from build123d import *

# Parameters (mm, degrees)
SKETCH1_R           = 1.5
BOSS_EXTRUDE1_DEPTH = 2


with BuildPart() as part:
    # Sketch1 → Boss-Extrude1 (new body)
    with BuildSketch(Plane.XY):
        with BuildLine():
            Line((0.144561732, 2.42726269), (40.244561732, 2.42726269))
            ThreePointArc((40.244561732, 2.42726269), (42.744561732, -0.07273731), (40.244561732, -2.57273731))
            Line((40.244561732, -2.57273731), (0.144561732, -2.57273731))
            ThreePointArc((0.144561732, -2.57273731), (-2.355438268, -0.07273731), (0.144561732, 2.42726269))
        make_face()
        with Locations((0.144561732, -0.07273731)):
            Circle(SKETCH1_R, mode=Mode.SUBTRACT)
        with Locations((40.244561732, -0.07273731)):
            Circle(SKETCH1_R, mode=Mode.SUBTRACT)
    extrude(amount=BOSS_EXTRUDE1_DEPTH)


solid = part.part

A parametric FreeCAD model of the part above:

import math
import FreeCAD as App
import Part
import Sketcher

doc = App.newDocument("Part")
body = doc.addObject("PartDesign::Body", "Body")

# Sketch on XY plane
sketch1 = doc.addObject("Sketcher::SketchObject", "Sketch")
body.addObject(sketch1)
sketch1.AttachmentSupport = (doc.XY_Plane, [""])
sketch1.MapMode = "FlatFace"
sketch1.addGeometry([
    Part.LineSegment(App.Vector(40.244562, 2.427263, 0), App.Vector(0.144562, 2.427263, 0)),  # 0
    Part.ArcOfCircle(Part.Circle(App.Vector(0.144562, -0.072737, 0), App.Vector(0, 0, 1), 2.5), math.radians(90), math.radians(270)),  # 1
    Part.LineSegment(App.Vector(0.144562, -2.572737, 0), App.Vector(40.244562, -2.572737, 0)),  # 2
    Part.ArcOfCircle(Part.Circle(App.Vector(40.244562, -0.072737, 0), App.Vector(0, 0, 1), 2.5), math.radians(-90), math.radians(90)),  # 3
    Part.Circle(App.Vector(40.244562, -0.072737, 0), App.Vector(0, 0, 1), 1.5),  # 4
    Part.Circle(App.Vector(0.144562, -0.072737, 0), App.Vector(0, 0, 1), 1.5),  # 5
], False)
sketch1.addConstraint([
    Sketcher.Constraint("Tangent", 0, 2, 1, 1),
    Sketcher.Constraint("Tangent", 1, 2, 2, 1),
    Sketcher.Constraint("Tangent", 2, 2, 3, 1),
    Sketcher.Constraint("Tangent", 3, 2, 0, 1),
    Sketcher.Constraint("Horizontal", 0),
    Sketcher.Constraint("Horizontal", 2),
    Sketcher.Constraint("Coincident", 4, 3, 3, 3),
    Sketcher.Constraint("Coincident", 5, 3, 1, 3),
    Sketcher.Constraint("Equal", 4, 5),
    Sketcher.Constraint("Diameter", 4, 3.0),
    Sketcher.Constraint("Radius", 1, 2.5),
    Sketcher.Constraint("DistanceX", 0, 2, 0, 1, 40.1),
    Sketcher.Constraint("DistanceX", -1, 1, 1, 3, 0.144562),
    Sketcher.Constraint("DistanceY", 1, 3, -1, 1, 0.072737),
])
pad1 = doc.addObject("PartDesign::Pad", "Pad")
body.addObject(pad1)
pad1.Profile = sketch1
pad1.Length = 2

doc.recompute()
